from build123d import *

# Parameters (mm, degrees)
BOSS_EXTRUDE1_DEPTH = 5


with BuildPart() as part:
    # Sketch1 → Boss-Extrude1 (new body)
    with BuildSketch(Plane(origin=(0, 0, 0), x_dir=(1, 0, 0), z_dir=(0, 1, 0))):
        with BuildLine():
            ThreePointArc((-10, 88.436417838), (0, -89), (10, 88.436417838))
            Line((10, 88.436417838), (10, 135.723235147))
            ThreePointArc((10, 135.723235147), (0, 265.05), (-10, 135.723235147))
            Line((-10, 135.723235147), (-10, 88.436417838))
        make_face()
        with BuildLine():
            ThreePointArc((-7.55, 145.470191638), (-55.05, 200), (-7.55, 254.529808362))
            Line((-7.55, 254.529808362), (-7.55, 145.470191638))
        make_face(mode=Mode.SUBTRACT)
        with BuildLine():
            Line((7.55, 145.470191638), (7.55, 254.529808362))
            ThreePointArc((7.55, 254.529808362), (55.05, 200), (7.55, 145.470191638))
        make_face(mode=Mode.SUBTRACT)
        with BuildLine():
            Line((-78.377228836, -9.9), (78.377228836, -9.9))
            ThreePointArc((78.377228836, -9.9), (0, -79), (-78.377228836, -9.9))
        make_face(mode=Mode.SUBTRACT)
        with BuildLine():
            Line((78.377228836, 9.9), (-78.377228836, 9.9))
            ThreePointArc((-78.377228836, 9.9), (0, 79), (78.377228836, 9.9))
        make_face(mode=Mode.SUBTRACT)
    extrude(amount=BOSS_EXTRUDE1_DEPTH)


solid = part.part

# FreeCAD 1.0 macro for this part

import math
import FreeCAD as App
import Part
import Sketcher
from FreeCAD import Vector
Q = App.Units.Quantity

doc = App.newDocument("Part")
body = doc.addObject("PartDesign::Body", "Body")

# Sketch on XZ plane
sketch1 = body.newObject("Sketcher::SketchObject", "Sketch")
sketch1.AttachmentSupport = (doc.getObject("XZ_Plane"), [""])
sketch1.MapMode = "FlatFace"
sketch1.addGeometry([
    Part.ArcOfCircle(Part.Circle(Vector(0, 0, 0), Vector(0, 0, 1), 89), math.radians(-84), math.radians(264)),  # 0
    Part.LineSegment(Vector(10, -88, 0), Vector(10, -136, 0)),  # 1
    Part.ArcOfCircle(Part.Circle(Vector(0, -200, 0), Vector(0, 0, 1), 65), math.radians(99), math.radians(441)),  # 2
    Part.LineSegment(Vector(-10, -136, 0), Vector(-10, -88, 0)),  # 3
    Part.ArcOfCircle(Part.Circle(Vector(0, 0, 0), Vector(0, 0, 1), 79), math.radians(7), math.radians(173)),  # 4
    Part.LineSegment(Vector(-78, 10, 0), Vector(78, 10, 0)),  # 5
    Part.ArcOfCircle(Part.Circle(Vector(0, 0, 0), Vector(0, 0, 1), 79), math.radians(-173), math.radians(-7)),  # 6
    Part.LineSegment(Vector(78, -10, 0), Vector(-78, -10, 0)),  # 7
    Part.LineSegment(Vector(-8, -255, 0), Vector(-8, -145, 0)),  # 8
    Part.ArcOfCircle(Part.Circle(Vector(0, -200, 0), Vector(0, 0, 1), 55), math.radians(98), math.radians(262)),  # 9
    Part.ArcOfCircle(Part.Circle(Vector(0, -200, 0), Vector(0, 0, 1), 55), math.radians(-82), math.radians(82)),  # 10
    Part.LineSegment(Vector(8, -145, 0), Vector(8, -255, 0)),  # 11
], False)
sketch1.addConstraint([
    Sketcher.Constraint("Coincident", 0, 1, 1, 1),
    Sketcher.Constraint("Coincident", 1, 2, 2, 2),
    Sketcher.Constraint("Coincident", 2, 1, 3, 1),
    Sketcher.Constraint("Coincident", 3, 2, 0, 2),
    Sketcher.Constraint("Coincident", 4, 1, 5, 2),
    Sketcher.Constraint("Coincident", 5, 1, 4, 2),
    Sketcher.Constraint("Coincident", 6, 1, 7, 2),
    Sketcher.Constraint("Coincident", 7, 1, 6, 2),
    Sketcher.Constraint("Coincident", 8, 1, 9, 2),
    Sketcher.Constraint("Coincident", 9, 1, 8, 2),
    Sketcher.Constraint("Coincident", 10, 1, 11, 2),
    Sketcher.Constraint("Coincident", 11, 1, 10, 2),
    Sketcher.Constraint("Vertical", 1),
    Sketcher.Constraint("Vertical", 3),
    Sketcher.Constraint("Horizontal", 5),
    Sketcher.Constraint("Horizontal", 7),
    Sketcher.Constraint("Vertical", 8),
    Sketcher.Constraint("Vertical", 11),
    Sketcher.Constraint("Coincident", 0, 3, -1, 1),
    Sketcher.Constraint("Coincident", 4, 3, -1, 1),
    Sketcher.Constraint("Coincident", 6, 3, -1, 1),
    Sketcher.Constraint("Coincident", 9, 3, 2, 3),
    Sketcher.Constraint("Coincident", 10, 3, 2, 3),
    Sketcher.Constraint("Equal", 4, 6),
    Sketcher.Constraint("Equal", 9, 10),
    Sketcher.Constraint("Symmetric", 1, 2, 2, 1, -2),
    Sketcher.Constraint("Horizontal", 8, 1, 10, 1),
    Sketcher.Constraint("Vertical", 5, 1, 6, 1),
    Sketcher.Constraint("Radius", 0, Q("89 mm")),
    Sketcher.Constraint("Radius", 4, Q("79 mm")),
    Sketcher.Constraint("Radius", 2, Q("65.05 mm")),
    Sketcher.Constraint("Radius", 9, Q("55.05 mm")),
    Sketcher.Constraint("DistanceY", 2, 3, -1, 1, Q("200 mm")),
    Sketcher.Constraint("DistanceX", -1, 1, 0, 1, Q("10 mm")),
    Sketcher.Constraint("DistanceY", -1, 1, 4, 1, Q("9.9 mm")),
    Sketcher.Constraint("DistanceX", 8, 1, 10, 1, Q("15.1 mm")),
])
pad1 = body.newObject("PartDesign::Pad", "Pad")
pad1.Profile = sketch1
pad1.Length = 5
pad1.Reversed = True

doc.recompute()
